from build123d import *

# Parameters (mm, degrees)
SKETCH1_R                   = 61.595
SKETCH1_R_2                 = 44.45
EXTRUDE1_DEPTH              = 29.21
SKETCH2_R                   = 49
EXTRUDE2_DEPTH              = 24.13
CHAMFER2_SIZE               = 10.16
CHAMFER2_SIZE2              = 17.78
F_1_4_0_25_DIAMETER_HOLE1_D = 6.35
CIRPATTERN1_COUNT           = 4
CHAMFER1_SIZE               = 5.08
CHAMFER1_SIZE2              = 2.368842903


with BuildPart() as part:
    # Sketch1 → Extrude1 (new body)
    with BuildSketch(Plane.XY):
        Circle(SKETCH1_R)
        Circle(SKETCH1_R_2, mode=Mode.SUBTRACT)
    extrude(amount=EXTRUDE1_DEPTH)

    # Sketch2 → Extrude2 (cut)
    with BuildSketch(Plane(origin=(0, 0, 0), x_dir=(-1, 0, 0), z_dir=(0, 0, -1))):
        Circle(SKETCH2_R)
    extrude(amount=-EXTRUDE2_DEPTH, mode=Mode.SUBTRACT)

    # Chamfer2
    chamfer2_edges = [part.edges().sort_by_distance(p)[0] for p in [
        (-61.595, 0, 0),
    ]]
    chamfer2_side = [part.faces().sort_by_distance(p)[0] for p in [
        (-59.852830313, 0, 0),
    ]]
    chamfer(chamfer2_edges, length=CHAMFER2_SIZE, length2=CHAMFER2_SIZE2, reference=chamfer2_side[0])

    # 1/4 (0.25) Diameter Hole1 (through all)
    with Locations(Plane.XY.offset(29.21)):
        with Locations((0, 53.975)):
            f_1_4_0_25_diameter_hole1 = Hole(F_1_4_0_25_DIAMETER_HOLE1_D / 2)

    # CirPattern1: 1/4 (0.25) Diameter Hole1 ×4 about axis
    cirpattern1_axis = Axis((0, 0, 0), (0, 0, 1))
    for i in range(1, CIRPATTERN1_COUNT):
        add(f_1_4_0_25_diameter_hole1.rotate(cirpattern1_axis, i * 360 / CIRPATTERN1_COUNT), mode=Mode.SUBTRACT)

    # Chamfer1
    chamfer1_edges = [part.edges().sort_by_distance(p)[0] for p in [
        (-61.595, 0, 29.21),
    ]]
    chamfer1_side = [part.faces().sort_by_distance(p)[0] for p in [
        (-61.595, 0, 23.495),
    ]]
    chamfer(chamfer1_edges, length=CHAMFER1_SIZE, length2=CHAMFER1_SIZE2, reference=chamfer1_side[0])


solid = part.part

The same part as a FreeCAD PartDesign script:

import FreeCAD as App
import Part
import Sketcher
Q = App.Units.Quantity


def edges_at(feature, points):
    """Names of the edges that pass closest to the given points."""
    edges = feature.Shape.Edges
    near = lambda p: min(range(len(edges)), key=lambda i: edges[i].distToShape(Part.Vertex(*p))[0])
    return sorted({f"Edge{near(p) + 1}" for p in points})

doc = App.newDocument("Part")
params = doc.addObject("Spreadsheet::Sheet", "Params")
for row, (alias, value) in enumerate([
    ("sketch1_diameter", "3.5 in"),
    ("sketch1_diameter2", "4.85 in"),
    ("pad1_length", "1.15 in"),
    ("pocket1_length", "0.95 in"),
    ("chamfer_size", "0.4 in"),
    ("chamfer_size2", "0.7 in"),
    ("sketch3_diameter", "0.25 in"),
    ("hole_diameter", "0.25 in"),
    ("chamfer2_size", "0.2 in"),
    ("chamfer2_size2", "2.368843 mm"),
], start=1):
    params.set(f"A{row}", alias)
    params.set(f"B{row}", "=" + value)
    params.setAlias(f"B{row}", alias)

body = doc.addObject("PartDesign::Body", "Body")

sketch1 = doc.addObject("Sketcher::SketchObject", "Sketch")
body.addObject(sketch1)
sketch1.AttachmentSupport = (doc.XY_Plane, [""])
sketch1.MapMode = "FlatFace"
sketch1.addGeometry(Part.Circle(App.Vector(0, 0, 0), App.Vector(0, 0, 1), 62), False)
sketch1.addGeometry(Part.Circle(App.Vector(0, 0, 0), App.Vector(0, 0, 1), 44), False)
sketch1.addConstraint(Sketcher.Constraint("Coincident", 0, 3, -1, 1))
sketch1.addConstraint(Sketcher.Constraint("Coincident", 1, 3, -1, 1))
sketch1.addConstraint(Sketcher.Constraint("Diameter", 1, Q("3.5 in")))
sketch1.addConstraint(Sketcher.Constraint("Diameter", 0, Q("4.85 in")))
sketch1.setExpression("Constraints[2]", "Params.sketch1_diameter")
sketch1.setExpression("Constraints[3]", "Params.sketch1_diameter2")
pad1 = doc.addObject("PartDesign::Pad", "Pad")
body.addObject(pad1)
pad1.Profile = sketch1
pad1.setExpression("Length", "Params.pad1_length")

sketch2 = doc.addObject("Sketcher::SketchObject", "Sketch001")
body.addObject(sketch2)
sketch2.AttachmentSupport = (doc.XY_Plane, [""])
sketch2.MapMode = "FlatFace"
sketch2.addGeometry(Part.Circle(App.Vector(0, 0, 0), App.Vector(0, 0, 1), 49), False)
sketch2.addConstraint(Sketcher.Constraint("Coincident", 0, 3, -1, 1))
sketch2.addConstraint(Sketcher.Constraint("Diameter", 0, 98.0))
pocket1 = doc.addObject("PartDesign::Pocket", "Pocket")
body.addObject(pocket1)
pocket1.Profile = sketch2
pocket1.setExpression("Length", "Params.pocket1_length")
pocket1.Reversed = True
doc.recompute()

chamfer = doc.addObject("PartDesign::Chamfer", "Chamfer")
body.addObject(chamfer)
chamfer.Base = (pocket1, edges_at(pocket1, [(-61.595, 0, 0)]))
chamfer.ChamferType = "Two distances"
chamfer.setExpression("Size", "Params.chamfer_size")
chamfer.setExpression("Size2", "Params.chamfer_size2")
chamfer.FlipDirection = True

sketch3 = doc.addObject("Sketcher::SketchObject", "Sketch002")
body.addObject(sketch3)
sketch3.AttachmentSupport = (doc.XY_Plane, [""])
sketch3.MapMode = "FlatFace"
sketch3.AttachmentOffset = App.Placement(App.Vector(0, 0, 1.15 * 25.4), App.Rotation())
sketch3.addGeometry(Part.Circle(App.Vector(0, 54, 0), App.Vector(0, 0, 1), 3.2), False)
sketch3.addConstraint(Sketcher.Constraint("PointOnObject", 0, 3, -2))
sketch3.addConstraint(Sketcher.Constraint("Diameter", 0, Q("0.25 in")))
sketch3.addConstraint(Sketcher.Constraint("DistanceY", -1, 1, 0, 3, Q("2.125 in")))
sketch3.setExpression("Constraints[1]", "Params.sketch3_diameter")
doc.recompute()
hole = doc.addObject("PartDesign::Hole", "Hole")
body.addObject(hole)
hole.Profile = sketch3
hole.ThreadType = "None"
hole.setExpression("Diameter", "Params.hole_diameter")
hole.DepthType = "ThroughAll"
doc.recompute()

polarpattern = doc.addObject("PartDesign::PolarPattern", "PolarPattern")
body.addObject(polarpattern)
polarpattern.Originals = [hole]
polarpattern.Axis = (doc.Z_Axis, [""])
polarpattern.Angle = 360
polarpattern.Occurrences = 4
body.Tip = polarpattern
doc.recompute()

chamfer2 = doc.addObject("PartDesign::Chamfer", "Chamfer001")
body.addObject(chamfer2)
chamfer2.Base = (polarpattern, edges_at(polarpattern, [(-61.595, 0, 29.21)]))
chamfer2.ChamferType = "Two distances"
chamfer2.setExpression("Size", "Params.chamfer2_size")
chamfer2.setExpression("Size2", "Params.chamfer2_size2")

doc.recompute()
